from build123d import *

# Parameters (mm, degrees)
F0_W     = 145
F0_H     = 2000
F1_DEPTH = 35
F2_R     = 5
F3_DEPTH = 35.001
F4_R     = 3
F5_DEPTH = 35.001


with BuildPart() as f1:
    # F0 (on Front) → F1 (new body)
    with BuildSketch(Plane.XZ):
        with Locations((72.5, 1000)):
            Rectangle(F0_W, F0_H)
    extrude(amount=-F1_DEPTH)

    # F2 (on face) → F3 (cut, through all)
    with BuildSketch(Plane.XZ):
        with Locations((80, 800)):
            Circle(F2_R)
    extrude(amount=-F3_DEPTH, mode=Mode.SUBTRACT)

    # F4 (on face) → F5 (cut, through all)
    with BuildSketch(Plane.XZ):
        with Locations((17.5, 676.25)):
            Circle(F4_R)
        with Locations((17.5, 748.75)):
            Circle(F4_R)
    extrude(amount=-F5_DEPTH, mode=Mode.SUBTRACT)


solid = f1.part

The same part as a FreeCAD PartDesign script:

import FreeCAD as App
import Part
import Sketcher
from FreeCAD import Vector


def add_polygon(sketch, points):
    """Adds a closed chain of lines whose ends are joined by coincident constraints."""
    first, n = sketch.GeometryCount, len(points)
    for a, b in zip(points, points[1:] + points[:1]):
        sketch.addGeometry(Part.LineSegment(App.Vector(*a, 0), App.Vector(*b, 0)), False)
    for i in range(n):
        sketch.addConstraint(Sketcher.Constraint("Coincident", first + i, 2, first + (i + 1) % n, 1))

doc = App.newDocument("Part")
body = doc.addObject("PartDesign::Body", "Body")

# Sketch on XZ plane
sketch1 = doc.addObject("Sketcher::SketchObject", "Sketch")
body.addObject(sketch1)
sketch1.AttachmentSupport = (doc.XZ_Plane, [""])
sketch1.MapMode = "FlatFace"
add_polygon(sketch1, [(0, 2000), (0, 0), (145, 0), (145, 2000)])  # lines 0-3
sketch1.addConstraint([
    Sketcher.Constraint("Vertical", 0),
    Sketcher.Constraint("Horizontal", 1),
    Sketcher.Constraint("Vertical", 2),
    Sketcher.Constraint("Horizontal", 3),
    Sketcher.Constraint("Coincident", 0, 2, -1, 1),
    Sketcher.Constraint("DistanceX", 1, 1, 1, 2, 145.0),
    Sketcher.Constraint("DistanceY", 0, 2, 0, 1, 2000.0),
])
pad1 = doc.addObject("PartDesign::Pad", "Pad")
body.addObject(pad1)
pad1.Profile = sketch1
pad1.Length = 35
pad1.Reversed = True

# Sketch on XZ plane
sketch2 = doc.addObject("Sketcher::SketchObject", "Sketch001")
body.addObject(sketch2)
sketch2.AttachmentSupport = (doc.XZ_Plane, [""])
sketch2.MapMode = "FlatFace"
sketch2.addGeometry(Part.Circle(Vector(80, 800, 0), Vector(0, 0, 1), 5), False)
sketch2.addConstraint([
    Sketcher.Constraint("Diameter", 0, 10.0),
    Sketcher.Constraint("DistanceX", -1, 1, 0, 3, 80.0),
    Sketcher.Constraint("DistanceY", -1, 1, 0, 3, 800.0),
])
pocket1 = doc.addObject("PartDesign::Pocket", "Pocket")
body.addObject(pocket1)
pocket1.Profile = sketch2
pocket1.Type = "ThroughAll"

# Sketch on XZ plane
sketch3 = doc.addObject("Sketcher::SketchObject", "Sketch002")
body.addObject(sketch3)
sketch3.AttachmentSupport = (doc.XZ_Plane, [""])
sketch3.MapMode = "FlatFace"
sketch3.addGeometry([
    Part.Circle(Vector(17.5, 676.2, 0), Vector(0, 0, 1), 3),
    Part.Circle(Vector(17.5, 748.8, 0), Vector(0, 0, 1), 3),
], False)
sketch3.addConstraint([
    Sketcher.Constraint("Equal", 0, 1),
    Sketcher.Constraint("Vertical", 0, 3, 1, 3),
    Sketcher.Constraint("Diameter", 0, 6.0),
    Sketcher.Constraint("DistanceX", -1, 1, 0, 3, 17.5),
    Sketcher.Constraint("DistanceY", 0, 3, 1, 3, 72.5),
    Sketcher.Constraint("DistanceY", -1, 1, 0, 3, 676.25),
])
pocket2 = doc.addObject("PartDesign::Pocket", "Pocket001")
body.addObject(pocket2)
pocket2.Profile = sketch3
pocket2.Type = "ThroughAll"

doc.recompute()
